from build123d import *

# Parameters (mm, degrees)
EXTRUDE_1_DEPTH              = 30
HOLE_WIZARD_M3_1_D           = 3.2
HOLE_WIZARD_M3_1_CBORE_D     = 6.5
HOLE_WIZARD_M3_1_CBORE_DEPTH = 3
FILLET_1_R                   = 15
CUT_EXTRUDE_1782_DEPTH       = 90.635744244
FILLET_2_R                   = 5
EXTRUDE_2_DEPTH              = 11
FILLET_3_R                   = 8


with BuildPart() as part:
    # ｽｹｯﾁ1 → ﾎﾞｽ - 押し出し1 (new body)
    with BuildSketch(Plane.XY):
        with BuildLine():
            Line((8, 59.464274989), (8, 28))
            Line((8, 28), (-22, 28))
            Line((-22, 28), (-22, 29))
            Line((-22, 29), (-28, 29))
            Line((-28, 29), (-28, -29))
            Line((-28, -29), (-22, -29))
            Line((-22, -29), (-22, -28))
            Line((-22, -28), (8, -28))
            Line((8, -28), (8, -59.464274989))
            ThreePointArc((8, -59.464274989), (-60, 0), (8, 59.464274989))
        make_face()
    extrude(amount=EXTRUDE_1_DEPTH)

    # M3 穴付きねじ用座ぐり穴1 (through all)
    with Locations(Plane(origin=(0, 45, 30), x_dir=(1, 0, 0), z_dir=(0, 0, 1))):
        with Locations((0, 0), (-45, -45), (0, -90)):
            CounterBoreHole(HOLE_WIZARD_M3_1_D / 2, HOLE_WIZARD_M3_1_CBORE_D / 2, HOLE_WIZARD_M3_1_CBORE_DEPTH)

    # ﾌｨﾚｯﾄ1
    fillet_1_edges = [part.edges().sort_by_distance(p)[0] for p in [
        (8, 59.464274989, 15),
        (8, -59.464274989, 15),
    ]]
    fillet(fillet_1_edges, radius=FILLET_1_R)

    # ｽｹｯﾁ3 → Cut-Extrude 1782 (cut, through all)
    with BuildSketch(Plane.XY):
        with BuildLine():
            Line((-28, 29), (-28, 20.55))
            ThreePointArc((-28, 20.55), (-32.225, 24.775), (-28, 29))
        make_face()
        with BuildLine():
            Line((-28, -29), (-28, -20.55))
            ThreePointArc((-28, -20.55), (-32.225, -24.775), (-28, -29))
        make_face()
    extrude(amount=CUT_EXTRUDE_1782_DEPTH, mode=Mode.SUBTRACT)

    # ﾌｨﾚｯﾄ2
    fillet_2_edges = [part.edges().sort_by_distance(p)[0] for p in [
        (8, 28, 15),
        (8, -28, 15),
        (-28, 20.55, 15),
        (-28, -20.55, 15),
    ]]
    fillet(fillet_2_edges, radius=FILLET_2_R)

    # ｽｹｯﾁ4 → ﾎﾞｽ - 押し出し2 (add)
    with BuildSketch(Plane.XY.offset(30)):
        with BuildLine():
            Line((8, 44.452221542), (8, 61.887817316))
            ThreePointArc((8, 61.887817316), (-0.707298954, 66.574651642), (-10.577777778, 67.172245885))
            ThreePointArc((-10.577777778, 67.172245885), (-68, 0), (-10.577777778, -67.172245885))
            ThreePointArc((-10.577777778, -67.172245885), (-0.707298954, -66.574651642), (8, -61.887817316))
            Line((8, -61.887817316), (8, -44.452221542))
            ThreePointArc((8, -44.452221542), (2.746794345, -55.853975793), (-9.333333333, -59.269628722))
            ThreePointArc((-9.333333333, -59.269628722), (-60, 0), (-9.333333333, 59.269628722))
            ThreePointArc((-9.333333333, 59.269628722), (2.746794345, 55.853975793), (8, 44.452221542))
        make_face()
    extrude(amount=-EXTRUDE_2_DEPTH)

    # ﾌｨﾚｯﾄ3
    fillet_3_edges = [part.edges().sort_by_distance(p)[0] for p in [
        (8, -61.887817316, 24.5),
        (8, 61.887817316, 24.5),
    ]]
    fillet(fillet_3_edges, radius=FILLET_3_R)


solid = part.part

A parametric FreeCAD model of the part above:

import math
import FreeCAD as App
import Part
import Sketcher
from FreeCAD import Vector
Q = App.Units.Quantity


def edges_at(feature, points):
    """Names of the edges that pass closest to the given points."""
    edges = feature.Shape.Edges
    near = lambda p: min(range(len(edges)), key=lambda i: edges[i].distToShape(Part.Vertex(*p))[0])
    return sorted({f"Edge{near(p) + 1}" for p in points})

doc = App.newDocument("Part")
body = doc.addObject("PartDesign::Body", "Body")

sketch1 = body.newObject("Sketcher::SketchObject", "Sketch")
sketch1.AttachmentSupport = (doc.getObject("XY_Plane"), [""])
sketch1.MapMode = "FlatFace"
sketch1.addGeometry([
    Part.LineSegment(Vector(8, 28, 0), Vector(8, 59.5, 0)),
    Part.ArcOfCircle(Part.Circle(Vector(0, 0, 0), Vector(0, 0, 1), 60), math.radians(82), math.radians(278)),
    Part.LineSegment(Vector(8, -59.5, 0), Vector(8, -28, 0)),
    Part.LineSegment(Vector(8, -28, 0), Vector(-22, -28, 0)),
    Part.LineSegment(Vector(-22, -28, 0), Vector(-22, -29, 0)),
    Part.LineSegment(Vector(-22, -29, 0), Vector(-28, -29, 0)),
    Part.LineSegment(Vector(-28, -29, 0), Vector(-28, 29, 0)),
    Part.LineSegment(Vector(-28, 29, 0), Vector(-22, 29, 0)),
    Part.LineSegment(Vector(-22, 29, 0), Vector(-22, 28, 0)),
    Part.LineSegment(Vector(-22, 28, 0), Vector(8, 28, 0)),
], False)
sketch1.addConstraint([
    Sketcher.Constraint("Coincident", 0, 2, 1, 1),
    Sketcher.Constraint("Coincident", 1, 2, 2, 1),
    Sketcher.Constraint("Coincident", 2, 2, 3, 1),
    Sketcher.Constraint("Coincident", 3, 2, 4, 1),
    Sketcher.Constraint("Coincident", 4, 2, 5, 1),
    Sketcher.Constraint("Coincident", 5, 2, 6, 1),
    Sketcher.Constraint("Coincident", 6, 2, 7, 1),
    Sketcher.Constraint("Coincident", 7, 2, 8, 1),
    Sketcher.Constraint("Coincident", 8, 2, 9, 1),
    Sketcher.Constraint("Coincident", 9, 2, 0, 1),
    Sketcher.Constraint("Vertical", 0),
    Sketcher.Constraint("Vertical", 2),
    Sketcher.Constraint("Horizontal", 3),
    Sketcher.Constraint("Vertical", 4),
    Sketcher.Constraint("Horizontal", 5),
    Sketcher.Constraint("Vertical", 6),
    Sketcher.Constraint("Horizontal", 7),
    Sketcher.Constraint("Vertical", 8),
    Sketcher.Constraint("Horizontal", 9),
    Sketcher.Constraint("Coincident", 1, 3, -1, 1),
    Sketcher.Constraint("Symmetric", 4, 2, 7, 2, -1),
    Sketcher.Constraint("Symmetric", 2, 2, 9, 2, -1),
    Sketcher.Constraint("Radius", 1, Q("60 mm")),
    Sketcher.Constraint("DistanceX", 3, 2, 3, 1, Q("30 mm")),
    Sketcher.Constraint("DistanceX", 5, 2, 5, 1, Q("6 mm")),
    Sketcher.Constraint("DistanceY", 4, 2, 4, 1, Q("1 mm")),
    Sketcher.Constraint("DistanceY", 6, 1, 6, 2, Q("58 mm")),
    Sketcher.Constraint("DistanceX", -1, 1, 0, 2, Q("8 mm")),
])
pad1 = body.newObject("PartDesign::Pad", "Pad")
pad1.Profile = sketch1
pad1.Length = 30

sketch2 = body.newObject("Sketcher::SketchObject", "Sketch001")
sketch2.AttachmentSupport = (doc.getObject("XY_Plane"), [""])
sketch2.MapMode = "FlatFace"
sketch2.AttachmentOffset = App.Placement(Vector(0, 0, 30), App.Rotation())
sketch2.addGeometry([
    Part.Circle(Vector(0, 45, 0), Vector(0, 0, 1), 1.6),
    Part.Circle(Vector(-45, 0, 0), Vector(0, 0, 1), 1.6),
    Part.Circle(Vector(0, -45, 0), Vector(0, 0, 1), 1.6),
], False)
sketch2.addConstraint([
    Sketcher.Constraint("Equal", 0, 1),
    Sketcher.Constraint("Equal", 1, 2),
    Sketcher.Constraint("Symmetric", 0, 3, 2, 3, -1, 1),
    Sketcher.Constraint("PointOnObject", 0, 3, -2),
    Sketcher.Constraint("PointOnObject", 1, 3, -1),
    Sketcher.Constraint("Diameter", 0, Q("3.2 mm")),
    Sketcher.Constraint("DistanceY", -1, 1, 0, 3, Q("45 mm")),
    Sketcher.Constraint("DistanceX", 1, 3, -1, 1, Q("45 mm")),
])
doc.recompute()
hole = body.newObject("PartDesign::Hole", "Hole")
hole.Profile = sketch2
hole.ThreadType = "None"
hole.Diameter = 3.2
hole.DepthType = "ThroughAll"
hole.HoleCutType = "Counterbore"
hole.HoleCutDiameter = 6.5
hole.HoleCutDepth = 3
doc.recompute()

fillet = body.newObject("PartDesign::Fillet", "Fillet")
fillet.Base = (hole, edges_at(hole, [(8, 59.464, 15), (8, -59.464, 15)]))
fillet.Radius = 15

sketch3 = body.newObject("Sketcher::SketchObject", "Sketch002")
sketch3.AttachmentSupport = (doc.getObject("XY_Plane"), [""])
sketch3.MapMode = "FlatFace"
sketch3.addGeometry([
    Part.LineSegment(Vector(-28, 20.6, 0), Vector(-28, 29, 0)),
    Part.ArcOfCircle(Part.Circle(Vector(-28, 24.8, 0), Vector(0, 0, 1), 4.2), math.radians(90), math.radians(270)),
    Part.LineSegment(Vector(-28, -29, 0), Vector(-28, -20.6, 0)),
    Part.ArcOfCircle(Part.Circle(Vector(-28, -24.8, 0), Vector(0, 0, 1), 4.2), math.radians(90), math.radians(270)),
], False)
sketch3.addConstraint([
    Sketcher.Constraint("Coincident", 0, 1, 1, 2),
    Sketcher.Constraint("Coincident", 1, 1, 0, 2),
    Sketcher.Constraint("Coincident", 2, 1, 3, 2),
    Sketcher.Constraint("Coincident", 3, 1, 2, 2),
    Sketcher.Constraint("Vertical", 0),
    Sketcher.Constraint("Vertical", 2),
    Sketcher.Constraint("Equal", 1, 3),
    Sketcher.Constraint("Symmetric", 1, 3, 3, 3, -1),
    Sketcher.Constraint("Vertical", 3, 3, 0, 1),
    Sketcher.Constraint("Vertical", 1, 1, 2, 1),
    Sketcher.Constraint("DistanceX", 1, 3, -1, 1, Q("28 mm")),
    Sketcher.Constraint("DistanceY", -1, 1, 1, 1, Q("29 mm")),
    Sketcher.Constraint("Radius", 1, Q("4.225 mm")),
])
pocket1 = body.newObject("PartDesign::Pocket", "Pocket")
pocket1.Profile = sketch3
pocket1.Type = "ThroughAll"
pocket1.Reversed = True
doc.recompute()

fillet2 = body.newObject("PartDesign::Fillet", "Fillet001")
fillet2.Base = (pocket1, edges_at(pocket1, [
    (8, 28, 15),
    (8, -28, 15),
    (-28, 20.55, 15),
    (-28, -20.55, 15),
]))
fillet2.Radius = 5

sketch4 = body.newObject("Sketcher::SketchObject", "Sketch003")
sketch4.AttachmentSupport = (doc.getObject("XY_Plane"), [""])
sketch4.MapMode = "FlatFace"
sketch4.AttachmentOffset = App.Placement(Vector(0, 0, 30), App.Rotation())
sketch4.addGeometry([
    Part.LineSegment(Vector(8, 44, 0), Vector(8, 62, 0)),
    Part.ArcOfCircle(Part.Circle(Vector(-7, 44, 0), Vector(0, 0, 1), 23), math.radians(49), math.radians(99)),
    Part.ArcOfCircle(Part.Circle(Vector(0, 0, 0), Vector(0, 0, 1), 68), math.radians(99), math.radians(261)),
    Part.ArcOfCircle(Part.Circle(Vector(-7, -44, 0), Vector(0, 0, 1), 23), math.radians(-99), math.radians(-49)),
    Part.LineSegment(Vector(8, -62, 0), Vector(8, -44, 0)),
    Part.ArcOfCircle(Part.Circle(Vector(-7, -44, 0), Vector(0, 0, 1), 15), math.radians(-99), math.radians(0)),
    Part.ArcOfCircle(Part.Circle(Vector(0, 0, 0), Vector(0, 0, 1), 60), math.radians(99), math.radians(261)),
    Part.ArcOfCircle(Part.Circle(Vector(-7, 44, 0), Vector(0, 0, 1), 15), math.radians(0), math.radians(99)),
], False)
sketch4.addConstraint([
    Sketcher.Constraint("Coincident", 0, 2, 1, 1),
    Sketcher.Constraint("Tangent", 1, 2, 2, 1),
    Sketcher.Constraint("Tangent", 2, 2, 3, 1),
    Sketcher.Constraint("Coincident", 3, 2, 4, 1),
    Sketcher.Constraint("Tangent", 4, 2, 5, 2),
    Sketcher.Constraint("Tangent", 5, 1, 6, 2),
    Sketcher.Constraint("Tangent", 6, 1, 7, 2),
    Sketcher.Constraint("Tangent", 7, 1, 0, 1),
    Sketcher.Constraint("Vertical", 0),
    Sketcher.Constraint("Vertical", 4),
    Sketcher.Constraint("Coincident", 2, 3, -1, 1),
    Sketcher.Constraint("Coincident", 6, 3, -1, 1),
    Sketcher.Constraint("Coincident", 5, 3, 3, 3),
    Sketcher.Constraint("Coincident", 7, 3, 1, 3),
    Sketcher.Constraint("Equal", 1, 3),
    Sketcher.Constraint("Vertical", 1, 3, 3, 3),
    Sketcher.Constraint("Radius", 1, Q("23 mm")),
    Sketcher.Constraint("Radius", 2, Q("68 mm")),
    Sketcher.Constraint("Radius", 5, Q("15 mm")),
    Sketcher.Constraint("DistanceX", 1, 3, -1, 1, Q("7 mm")),
])
pad2 = body.newObject("PartDesign::Pad", "Pad001")
pad2.Profile = sketch4
pad2.Length = 11
pad2.Reversed = True
doc.recompute()

fillet3 = body.newObject("PartDesign::Fillet", "Fillet002")
fillet3.Base = (pad2, edges_at(pad2, [(8, -61.888, 24.5), (8, 61.888, 24.5)]))
fillet3.Radius = 8

doc.recompute()
